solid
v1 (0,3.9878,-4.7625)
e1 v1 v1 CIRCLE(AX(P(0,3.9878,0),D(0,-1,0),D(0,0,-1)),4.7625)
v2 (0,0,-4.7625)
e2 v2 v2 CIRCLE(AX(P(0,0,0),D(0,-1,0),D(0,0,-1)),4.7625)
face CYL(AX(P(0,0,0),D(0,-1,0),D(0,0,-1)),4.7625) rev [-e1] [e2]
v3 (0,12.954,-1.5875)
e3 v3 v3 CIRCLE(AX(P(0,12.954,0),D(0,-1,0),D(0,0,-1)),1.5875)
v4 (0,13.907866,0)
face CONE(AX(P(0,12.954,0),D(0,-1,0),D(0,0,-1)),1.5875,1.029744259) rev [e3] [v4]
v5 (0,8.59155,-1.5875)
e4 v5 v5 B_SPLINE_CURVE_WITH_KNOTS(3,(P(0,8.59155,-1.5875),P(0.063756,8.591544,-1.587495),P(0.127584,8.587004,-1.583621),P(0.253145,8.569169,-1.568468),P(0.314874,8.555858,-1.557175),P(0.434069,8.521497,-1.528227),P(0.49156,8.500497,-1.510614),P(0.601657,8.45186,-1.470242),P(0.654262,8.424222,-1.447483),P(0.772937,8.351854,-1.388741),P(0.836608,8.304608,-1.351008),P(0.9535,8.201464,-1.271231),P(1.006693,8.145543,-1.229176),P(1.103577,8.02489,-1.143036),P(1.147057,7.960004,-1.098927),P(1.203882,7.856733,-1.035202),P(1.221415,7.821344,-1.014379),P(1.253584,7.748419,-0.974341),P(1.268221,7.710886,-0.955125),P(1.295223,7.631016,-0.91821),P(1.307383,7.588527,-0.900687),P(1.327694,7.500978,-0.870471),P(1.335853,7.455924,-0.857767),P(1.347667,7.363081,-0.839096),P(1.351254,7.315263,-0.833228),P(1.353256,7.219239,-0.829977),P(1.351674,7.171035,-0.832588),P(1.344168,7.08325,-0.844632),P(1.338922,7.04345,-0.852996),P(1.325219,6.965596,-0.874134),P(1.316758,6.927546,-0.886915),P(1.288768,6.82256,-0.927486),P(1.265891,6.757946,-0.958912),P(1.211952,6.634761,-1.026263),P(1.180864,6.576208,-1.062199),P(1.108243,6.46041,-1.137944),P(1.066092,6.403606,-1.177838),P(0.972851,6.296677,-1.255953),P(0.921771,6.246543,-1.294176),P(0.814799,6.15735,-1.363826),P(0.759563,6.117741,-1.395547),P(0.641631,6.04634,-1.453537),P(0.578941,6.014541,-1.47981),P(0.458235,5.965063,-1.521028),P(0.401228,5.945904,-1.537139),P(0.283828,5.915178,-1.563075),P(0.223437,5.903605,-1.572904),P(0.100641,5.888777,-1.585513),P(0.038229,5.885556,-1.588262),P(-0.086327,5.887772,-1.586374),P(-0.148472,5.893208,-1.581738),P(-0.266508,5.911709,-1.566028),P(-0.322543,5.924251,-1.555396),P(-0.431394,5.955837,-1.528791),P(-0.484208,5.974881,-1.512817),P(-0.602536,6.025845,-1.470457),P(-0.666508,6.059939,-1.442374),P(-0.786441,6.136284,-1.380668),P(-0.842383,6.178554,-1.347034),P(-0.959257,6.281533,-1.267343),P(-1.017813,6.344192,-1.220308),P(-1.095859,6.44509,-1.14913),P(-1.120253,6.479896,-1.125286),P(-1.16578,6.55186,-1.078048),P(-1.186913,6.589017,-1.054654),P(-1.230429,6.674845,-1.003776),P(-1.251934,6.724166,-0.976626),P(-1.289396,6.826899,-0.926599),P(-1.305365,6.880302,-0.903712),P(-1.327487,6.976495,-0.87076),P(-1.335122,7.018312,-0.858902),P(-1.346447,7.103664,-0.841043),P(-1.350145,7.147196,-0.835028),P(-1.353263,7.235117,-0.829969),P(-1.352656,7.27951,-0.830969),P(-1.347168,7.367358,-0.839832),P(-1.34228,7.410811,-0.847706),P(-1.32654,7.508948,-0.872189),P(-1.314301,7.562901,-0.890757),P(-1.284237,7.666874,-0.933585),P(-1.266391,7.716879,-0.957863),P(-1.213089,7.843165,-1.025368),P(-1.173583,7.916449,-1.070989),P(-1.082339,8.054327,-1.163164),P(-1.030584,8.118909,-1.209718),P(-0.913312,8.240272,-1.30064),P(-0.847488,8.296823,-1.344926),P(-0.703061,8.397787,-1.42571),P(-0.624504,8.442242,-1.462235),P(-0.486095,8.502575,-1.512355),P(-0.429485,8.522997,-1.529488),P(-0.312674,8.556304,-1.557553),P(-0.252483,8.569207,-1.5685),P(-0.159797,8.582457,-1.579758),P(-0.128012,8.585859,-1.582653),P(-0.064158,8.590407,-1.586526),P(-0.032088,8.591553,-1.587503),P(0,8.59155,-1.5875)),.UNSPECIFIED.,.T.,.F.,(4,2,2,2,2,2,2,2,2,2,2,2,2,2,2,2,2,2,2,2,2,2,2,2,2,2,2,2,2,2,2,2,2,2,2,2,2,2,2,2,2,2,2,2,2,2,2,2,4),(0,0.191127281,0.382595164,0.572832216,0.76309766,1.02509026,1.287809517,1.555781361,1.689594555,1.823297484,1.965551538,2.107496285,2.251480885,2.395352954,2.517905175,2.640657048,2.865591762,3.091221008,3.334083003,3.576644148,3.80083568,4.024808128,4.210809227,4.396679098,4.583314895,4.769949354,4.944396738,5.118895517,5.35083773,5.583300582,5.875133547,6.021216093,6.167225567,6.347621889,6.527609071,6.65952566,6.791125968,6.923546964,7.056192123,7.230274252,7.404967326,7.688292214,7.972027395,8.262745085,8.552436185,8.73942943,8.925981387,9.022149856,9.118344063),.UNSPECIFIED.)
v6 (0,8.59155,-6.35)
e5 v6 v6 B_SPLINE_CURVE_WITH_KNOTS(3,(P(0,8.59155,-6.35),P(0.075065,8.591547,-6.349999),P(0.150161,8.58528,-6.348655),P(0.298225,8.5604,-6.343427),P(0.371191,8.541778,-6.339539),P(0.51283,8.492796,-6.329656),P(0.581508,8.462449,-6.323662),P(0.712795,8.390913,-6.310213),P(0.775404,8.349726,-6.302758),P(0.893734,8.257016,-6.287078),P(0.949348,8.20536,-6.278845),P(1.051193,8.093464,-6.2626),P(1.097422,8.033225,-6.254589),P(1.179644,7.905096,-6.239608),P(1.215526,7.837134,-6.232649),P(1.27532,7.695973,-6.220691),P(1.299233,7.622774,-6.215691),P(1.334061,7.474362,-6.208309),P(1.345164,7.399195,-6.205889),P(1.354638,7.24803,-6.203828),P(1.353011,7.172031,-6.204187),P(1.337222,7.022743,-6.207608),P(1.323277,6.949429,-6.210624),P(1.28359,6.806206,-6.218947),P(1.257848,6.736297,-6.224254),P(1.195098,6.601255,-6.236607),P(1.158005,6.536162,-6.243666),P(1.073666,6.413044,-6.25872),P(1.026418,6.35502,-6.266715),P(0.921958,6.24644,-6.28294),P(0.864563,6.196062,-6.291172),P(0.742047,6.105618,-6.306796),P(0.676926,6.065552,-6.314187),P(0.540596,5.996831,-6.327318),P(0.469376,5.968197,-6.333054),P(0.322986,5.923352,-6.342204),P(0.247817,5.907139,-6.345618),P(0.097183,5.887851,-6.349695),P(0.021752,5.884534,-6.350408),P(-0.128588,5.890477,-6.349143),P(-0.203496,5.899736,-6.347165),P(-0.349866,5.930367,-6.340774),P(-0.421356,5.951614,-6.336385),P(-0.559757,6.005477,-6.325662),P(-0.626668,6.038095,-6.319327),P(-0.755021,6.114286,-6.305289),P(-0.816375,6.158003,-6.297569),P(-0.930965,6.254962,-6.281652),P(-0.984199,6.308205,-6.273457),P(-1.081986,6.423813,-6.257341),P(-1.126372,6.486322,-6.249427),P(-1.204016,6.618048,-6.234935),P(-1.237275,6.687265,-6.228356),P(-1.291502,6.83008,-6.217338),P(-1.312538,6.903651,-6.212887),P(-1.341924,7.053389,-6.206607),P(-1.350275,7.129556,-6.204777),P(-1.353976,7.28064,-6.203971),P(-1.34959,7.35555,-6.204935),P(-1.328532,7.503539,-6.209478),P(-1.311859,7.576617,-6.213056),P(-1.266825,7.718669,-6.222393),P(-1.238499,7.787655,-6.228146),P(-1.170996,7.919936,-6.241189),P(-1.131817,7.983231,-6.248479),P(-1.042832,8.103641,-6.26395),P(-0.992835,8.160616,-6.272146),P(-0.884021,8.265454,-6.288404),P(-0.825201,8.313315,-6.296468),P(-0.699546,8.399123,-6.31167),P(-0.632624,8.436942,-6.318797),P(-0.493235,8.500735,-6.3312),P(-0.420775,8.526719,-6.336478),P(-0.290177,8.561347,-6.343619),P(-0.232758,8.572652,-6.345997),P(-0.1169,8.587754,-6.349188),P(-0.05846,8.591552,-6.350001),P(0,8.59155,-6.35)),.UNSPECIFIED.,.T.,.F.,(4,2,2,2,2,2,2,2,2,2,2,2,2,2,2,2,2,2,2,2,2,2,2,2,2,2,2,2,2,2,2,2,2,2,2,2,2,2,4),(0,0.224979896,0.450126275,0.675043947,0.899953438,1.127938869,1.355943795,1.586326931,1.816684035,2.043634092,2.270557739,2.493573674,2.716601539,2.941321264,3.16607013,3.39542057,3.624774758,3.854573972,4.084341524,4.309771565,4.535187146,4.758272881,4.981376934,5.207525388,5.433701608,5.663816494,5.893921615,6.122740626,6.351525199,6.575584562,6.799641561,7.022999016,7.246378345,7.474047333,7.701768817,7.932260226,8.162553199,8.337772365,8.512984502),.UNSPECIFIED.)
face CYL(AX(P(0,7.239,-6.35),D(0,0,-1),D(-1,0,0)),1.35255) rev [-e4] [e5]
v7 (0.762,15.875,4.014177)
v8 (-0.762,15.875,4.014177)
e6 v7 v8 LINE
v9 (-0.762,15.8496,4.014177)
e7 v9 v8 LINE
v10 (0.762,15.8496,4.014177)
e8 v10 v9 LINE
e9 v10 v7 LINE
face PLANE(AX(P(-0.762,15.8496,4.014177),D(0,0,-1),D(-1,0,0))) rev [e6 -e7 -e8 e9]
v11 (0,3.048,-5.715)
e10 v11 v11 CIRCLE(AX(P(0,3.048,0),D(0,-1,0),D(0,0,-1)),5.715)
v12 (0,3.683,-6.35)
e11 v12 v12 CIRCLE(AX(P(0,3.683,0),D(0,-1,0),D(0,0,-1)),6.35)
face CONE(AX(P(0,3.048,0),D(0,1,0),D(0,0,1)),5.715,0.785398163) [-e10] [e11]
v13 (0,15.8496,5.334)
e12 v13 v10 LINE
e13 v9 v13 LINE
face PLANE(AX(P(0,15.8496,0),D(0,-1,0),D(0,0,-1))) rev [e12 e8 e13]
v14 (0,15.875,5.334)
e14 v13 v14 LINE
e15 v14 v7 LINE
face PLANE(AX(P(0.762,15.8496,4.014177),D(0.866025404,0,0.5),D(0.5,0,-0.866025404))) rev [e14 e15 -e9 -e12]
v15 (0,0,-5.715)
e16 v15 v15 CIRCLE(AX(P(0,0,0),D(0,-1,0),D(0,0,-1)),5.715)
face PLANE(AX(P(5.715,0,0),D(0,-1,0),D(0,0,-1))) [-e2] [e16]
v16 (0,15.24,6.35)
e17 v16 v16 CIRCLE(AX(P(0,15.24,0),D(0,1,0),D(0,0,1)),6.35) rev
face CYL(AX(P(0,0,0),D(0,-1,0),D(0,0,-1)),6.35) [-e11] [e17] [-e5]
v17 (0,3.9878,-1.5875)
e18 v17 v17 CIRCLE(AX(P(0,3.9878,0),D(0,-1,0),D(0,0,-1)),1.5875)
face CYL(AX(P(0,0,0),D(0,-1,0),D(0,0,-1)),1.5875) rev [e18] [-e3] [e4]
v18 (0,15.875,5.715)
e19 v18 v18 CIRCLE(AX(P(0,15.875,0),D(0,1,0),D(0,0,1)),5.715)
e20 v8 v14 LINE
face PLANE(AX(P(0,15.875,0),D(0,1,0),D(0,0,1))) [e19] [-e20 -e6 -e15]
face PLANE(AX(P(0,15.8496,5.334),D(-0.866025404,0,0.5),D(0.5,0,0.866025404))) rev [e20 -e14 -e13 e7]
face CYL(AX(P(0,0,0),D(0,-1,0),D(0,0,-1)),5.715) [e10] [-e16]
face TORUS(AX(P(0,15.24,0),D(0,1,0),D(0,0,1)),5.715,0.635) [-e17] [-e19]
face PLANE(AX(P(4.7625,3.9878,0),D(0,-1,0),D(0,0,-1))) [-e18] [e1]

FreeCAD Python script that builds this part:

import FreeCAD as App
import Part
import Sketcher
from FreeCAD import Vector
Q = App.Units.Quantity


def edges_at(feature, points):
    """Names of the edges that pass closest to the given points."""
    edges = feature.Shape.Edges
    near = lambda p: min(range(len(edges)), key=lambda i: edges[i].distToShape(Part.Vertex(*p))[0])
    return sorted({f"Edge{near(p) + 1}" for p in points})

doc = App.newDocument("Part")
body = doc.addObject("PartDesign::Body", "Body")

# Sketch on XY plane
sketch1 = doc.addObject("Sketcher::SketchObject", "Sketch")
body.addObject(sketch1)
sketch1.AttachmentSupport = (doc.XY_Plane, [""])
sketch1.MapMode = "FlatFace"
sketch1.addGeometry([
    Part.LineSegment(Vector(6.3, 15.9, 0), Vector(0, 15.9, 0)),  # 0
    Part.LineSegment(Vector(0, 15.9, 0), Vector(0, 4, 0)),  # 1
    Part.LineSegment(Vector(0, 4, 0), Vector(4.8, 4, 0)),  # 2
    Part.LineSegment(Vector(4.8, 4, 0), Vector(4.8, 0, 0)),  # 3
    Part.LineSegment(Vector(4.8, 0, 0), Vector(5.7, 0, 0)),  # 4
    Part.LineSegment(Vector(5.7, 0, 0), Vector(5.7, 3, 0)),  # 5
    Part.LineSegment(Vector(5.7, 3, 0), Vector(6.3, 3.7, 0)),  # 6
    Part.LineSegment(Vector(6.3, 3.7, 0), Vector(6.3, 15.9, 0)),  # 7
], False)
sketch1.addConstraint([
    Sketcher.Constraint("Coincident", 0, 2, 1, 1),
    Sketcher.Constraint("Coincident", 1, 2, 2, 1),
    Sketcher.Constraint("Coincident", 2, 2, 3, 1),
    Sketcher.Constraint("Coincident", 3, 2, 4, 1),
    Sketcher.Constraint("Coincident", 4, 2, 5, 1),
    Sketcher.Constraint("Coincident", 5, 2, 6, 1),
    Sketcher.Constraint("Coincident", 6, 2, 7, 1),
    Sketcher.Constraint("Coincident", 7, 2, 0, 1),
    Sketcher.Constraint("Horizontal", 0),
    Sketcher.Constraint("Vertical", 1),
    Sketcher.Constraint("Horizontal", 2),
    Sketcher.Constraint("Vertical", 3),
    Sketcher.Constraint("Horizontal", 4),
    Sketcher.Constraint("Vertical", 5),
    Sketcher.Constraint("Vertical", 7),
    Sketcher.Constraint("PointOnObject", 0, 2, -2),
    Sketcher.Constraint("PointOnObject", 3, 2, -1),
    Sketcher.Constraint("Angle", 6, Q("45 deg")),
    Sketcher.Constraint("DistanceX", 0, 2, 0, 1, Q("0.25 in")),
    Sketcher.Constraint("DistanceY", 5, 1, 5, 2, Q("0.12 in")),
    Sketcher.Constraint("DistanceY", 7, 1, 7, 2, Q("0.48 in")),
    Sketcher.Constraint("DistanceX", 2, 1, 2, 2, Q("0.1875 in")),
    Sketcher.Constraint("DistanceY", 1, 2, 1, 1, Q("0.468 in")),
    Sketcher.Constraint("DistanceY", 3, 2, 3, 1, Q("0.157 in")),
])
revolution = doc.addObject("PartDesign::Revolution", "Revolution")
body.addObject(revolution)
revolution.Profile = sketch1
revolution.ReferenceAxis = (sketch1, ["V_Axis"])
revolution.Angle = 360

# Sketch on XZ plane
sketch2 = doc.addObject("Sketcher::SketchObject", "Sketch001")
body.addObject(sketch2)
sketch2.AttachmentSupport = (doc.XZ_Plane, [""])
sketch2.MapMode = "FlatFace"
sketch2.addGeometry(Part.Circle(Vector(0, 0, 0), Vector(0, 0, 1), 1.6), False)
sketch2.addConstraint([
    Sketcher.Constraint("Coincident", 0, 3, -1, 1),
    Sketcher.Constraint("Diameter", 0, Q("0.125 in")),
])
doc.recompute()
hole = doc.addObject("PartDesign::Hole", "Hole")
body.addObject(hole)
hole.Profile = sketch2
hole.ThreadType = "None"
hole.Diameter = Q("0.125 in")
hole.DepthType = "Dimension"
hole.Depth = Q("0.51 in")
hole.DrillPoint = "Angled"
hole.DrillPointAngle = 118

# Sketch on XY plane
sketch3 = doc.addObject("Sketcher::SketchObject", "Sketch002")
body.addObject(sketch3)
sketch3.AttachmentSupport = (doc.XY_Plane, [""])
sketch3.MapMode = "FlatFace"
sketch3.AttachmentOffset = App.Placement(Vector(0, 0, -0.25 * 25.4), App.Rotation())
sketch3.addGeometry(Part.Circle(Vector(0, 7.2, 0), Vector(0, 0, 1), 1.4), False)
sketch3.addConstraint([
    Sketcher.Constraint("PointOnObject", 0, 3, -2),
    Sketcher.Constraint("Diameter", 0, Q("0.1065 in")),
    Sketcher.Constraint("DistanceY", -1, 1, 0, 3, Q("0.285 in")),
])
doc.recompute()
hole2 = doc.addObject("PartDesign::Hole", "Hole001")
body.addObject(hole2)
hole2.Profile = sketch3
hole2.ThreadType = "None"
hole2.Diameter = Q("0.1065 in")
hole2.DepthType = "Dimension"
hole2.Depth = 6.349
hole2.DrillPoint = "Angled"
hole2.DrillPointAngle = 118
hole2.Reversed = True
doc.recompute()

fillet = doc.addObject("PartDesign::Fillet", "Fillet")
body.addObject(fillet)
fillet.Base = (hole2, edges_at(hole2, [(-6.35, 15.875, 0)]))
fillet.Radius = Q("0.025 in")

# Sketch on XZ plane
sketch4 = doc.addObject("Sketcher::SketchObject", "Sketch003")
body.addObject(sketch4)
sketch4.AttachmentSupport = (doc.XZ_Plane, [""])
sketch4.MapMode = "FlatFace"
sketch4.AttachmentOffset = App.Placement(Vector(0, 0, -0.625 * 25.4), App.Rotation())
sketch4.addGeometry([
    Part.LineSegment(Vector(-0.8, 4, 0), Vector(0, 5.3, 0)),
    Part.LineSegment(Vector(0, 5.3, 0), Vector(0.8, 4, 0)),
    Part.LineSegment(Vector(0.8, 4, 0), Vector(-0.8, 4, 0)),
], False)
sketch4.addConstraint([
    Sketcher.Constraint("Coincident", 0, 2, 1, 1),
    Sketcher.Constraint("Coincident", 1, 2, 2, 1),
    Sketcher.Constraint("Coincident", 2, 2, 0, 1),
    Sketcher.Constraint("Horizontal", 2),
    Sketcher.Constraint("PointOnObject", 0, 2, -2),
    Sketcher.Constraint("Equal", 0, 1),
    Sketcher.Constraint("Angle", 0, Q("60 deg")),
    Sketcher.Constraint("DistanceX", 2, 2, 2, 1, Q("0.06 in")),
    Sketcher.Constraint("DistanceY", -1, 1, 0, 2, Q("0.21 in")),
])
pocket1 = doc.addObject("PartDesign::Pocket", "Pocket")
body.addObject(pocket1)
pocket1.Profile = sketch4
pocket1.Length = Q("0.001 in")
pocket1.Reversed = True

doc.recompute()
